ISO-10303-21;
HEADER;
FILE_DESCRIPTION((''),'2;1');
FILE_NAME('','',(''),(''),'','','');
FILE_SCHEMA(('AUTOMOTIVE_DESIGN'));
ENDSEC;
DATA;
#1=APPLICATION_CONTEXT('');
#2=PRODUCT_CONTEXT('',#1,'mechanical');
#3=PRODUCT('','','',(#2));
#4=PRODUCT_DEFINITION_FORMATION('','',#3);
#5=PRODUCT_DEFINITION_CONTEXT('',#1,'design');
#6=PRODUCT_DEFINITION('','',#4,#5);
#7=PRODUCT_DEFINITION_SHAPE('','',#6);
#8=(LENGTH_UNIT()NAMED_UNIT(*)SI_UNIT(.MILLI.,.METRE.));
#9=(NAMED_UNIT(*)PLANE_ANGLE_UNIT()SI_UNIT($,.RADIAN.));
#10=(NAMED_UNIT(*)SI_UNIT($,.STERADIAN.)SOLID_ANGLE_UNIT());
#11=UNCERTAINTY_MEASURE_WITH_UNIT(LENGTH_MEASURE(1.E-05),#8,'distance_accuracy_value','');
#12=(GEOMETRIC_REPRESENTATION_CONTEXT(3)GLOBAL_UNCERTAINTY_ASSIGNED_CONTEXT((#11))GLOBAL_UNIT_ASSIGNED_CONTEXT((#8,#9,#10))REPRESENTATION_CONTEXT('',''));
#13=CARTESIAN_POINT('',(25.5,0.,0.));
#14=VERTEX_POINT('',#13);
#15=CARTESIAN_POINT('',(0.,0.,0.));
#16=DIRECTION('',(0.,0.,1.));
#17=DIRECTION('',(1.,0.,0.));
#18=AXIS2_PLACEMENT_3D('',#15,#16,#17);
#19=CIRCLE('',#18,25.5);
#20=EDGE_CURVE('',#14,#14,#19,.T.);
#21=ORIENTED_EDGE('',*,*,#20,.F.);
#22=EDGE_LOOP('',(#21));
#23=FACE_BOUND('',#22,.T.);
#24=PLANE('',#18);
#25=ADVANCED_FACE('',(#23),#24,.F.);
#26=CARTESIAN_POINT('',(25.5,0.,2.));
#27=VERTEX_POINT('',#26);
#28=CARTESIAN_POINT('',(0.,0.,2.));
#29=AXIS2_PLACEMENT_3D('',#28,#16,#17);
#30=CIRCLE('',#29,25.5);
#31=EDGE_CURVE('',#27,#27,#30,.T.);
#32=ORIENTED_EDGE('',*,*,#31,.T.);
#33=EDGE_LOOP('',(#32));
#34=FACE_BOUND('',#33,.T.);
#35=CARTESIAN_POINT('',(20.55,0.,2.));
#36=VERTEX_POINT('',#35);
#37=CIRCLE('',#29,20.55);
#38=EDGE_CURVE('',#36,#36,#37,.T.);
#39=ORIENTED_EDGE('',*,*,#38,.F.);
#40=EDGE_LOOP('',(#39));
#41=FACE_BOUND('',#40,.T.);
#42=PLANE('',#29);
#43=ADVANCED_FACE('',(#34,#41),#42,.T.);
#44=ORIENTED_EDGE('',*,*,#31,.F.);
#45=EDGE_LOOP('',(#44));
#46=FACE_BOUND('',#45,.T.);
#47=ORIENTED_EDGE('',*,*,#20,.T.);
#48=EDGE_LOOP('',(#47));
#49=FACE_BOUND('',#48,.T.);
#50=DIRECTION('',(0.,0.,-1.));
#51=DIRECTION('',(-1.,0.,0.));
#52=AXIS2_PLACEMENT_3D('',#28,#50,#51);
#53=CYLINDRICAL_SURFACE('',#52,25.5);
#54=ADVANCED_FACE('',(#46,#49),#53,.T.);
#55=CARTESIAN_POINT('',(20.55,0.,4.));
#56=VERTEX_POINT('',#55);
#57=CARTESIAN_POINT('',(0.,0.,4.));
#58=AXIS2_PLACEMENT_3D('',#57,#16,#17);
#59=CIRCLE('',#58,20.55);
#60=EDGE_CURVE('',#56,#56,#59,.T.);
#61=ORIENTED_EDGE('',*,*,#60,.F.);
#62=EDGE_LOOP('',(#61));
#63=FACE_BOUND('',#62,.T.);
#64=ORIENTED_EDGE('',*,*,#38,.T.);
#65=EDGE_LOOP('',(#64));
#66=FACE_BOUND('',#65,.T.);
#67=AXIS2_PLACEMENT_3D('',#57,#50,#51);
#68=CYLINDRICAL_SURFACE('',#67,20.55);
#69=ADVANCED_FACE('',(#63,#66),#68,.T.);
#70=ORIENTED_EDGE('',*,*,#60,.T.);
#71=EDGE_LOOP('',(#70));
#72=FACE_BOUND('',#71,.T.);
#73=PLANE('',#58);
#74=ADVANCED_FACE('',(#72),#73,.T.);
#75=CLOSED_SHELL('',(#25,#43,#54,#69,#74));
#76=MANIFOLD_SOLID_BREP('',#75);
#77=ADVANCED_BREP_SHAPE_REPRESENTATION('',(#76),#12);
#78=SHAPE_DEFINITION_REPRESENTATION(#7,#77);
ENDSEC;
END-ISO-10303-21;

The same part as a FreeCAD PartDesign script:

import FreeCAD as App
import Part
import Sketcher

V = App.Vector
Q = App.Units.Quantity

doc = App.newDocument("Part")
body = doc.addObject("PartDesign::Body", "Body")

sketch1 = body.newObject("Sketcher::SketchObject", "Sketch")
sketch1.AttachmentSupport = (doc.getObject("XY_Plane"), [""])
sketch1.MapMode = "FlatFace"
sketch1.addGeometry(Part.Circle(V(0, 0, 0), V(0, 0, 1), 26), False)
sketch1.addConstraint([
    Sketcher.Constraint("Coincident", 0, 3, -1, 1),
    Sketcher.Constraint("Diameter", 0, Q("51 mm")),
])
pad1 = body.newObject("PartDesign::Pad", "Pad")
pad1.Profile = sketch1
pad1.Length = 2

sketch2 = body.newObject("Sketcher::SketchObject", "Sketch001")
sketch2.AttachmentSupport = (doc.getObject("XY_Plane"), [""])
sketch2.MapMode = "FlatFace"
sketch2.AttachmentOffset = App.Placement(V(0, 0, 2), App.Rotation())
sketch2.addGeometry(Part.Circle(V(0, 0, 0), V(0, 0, 1), 21), False)
sketch2.addConstraint([
    Sketcher.Constraint("Coincident", 0, 3, -1, 1),
    Sketcher.Constraint("Diameter", 0, Q("41.1 mm")),
])
pad2 = body.newObject("PartDesign::Pad", "Pad001")
pad2.Profile = sketch2
pad2.Length = 2

doc.recompute()
